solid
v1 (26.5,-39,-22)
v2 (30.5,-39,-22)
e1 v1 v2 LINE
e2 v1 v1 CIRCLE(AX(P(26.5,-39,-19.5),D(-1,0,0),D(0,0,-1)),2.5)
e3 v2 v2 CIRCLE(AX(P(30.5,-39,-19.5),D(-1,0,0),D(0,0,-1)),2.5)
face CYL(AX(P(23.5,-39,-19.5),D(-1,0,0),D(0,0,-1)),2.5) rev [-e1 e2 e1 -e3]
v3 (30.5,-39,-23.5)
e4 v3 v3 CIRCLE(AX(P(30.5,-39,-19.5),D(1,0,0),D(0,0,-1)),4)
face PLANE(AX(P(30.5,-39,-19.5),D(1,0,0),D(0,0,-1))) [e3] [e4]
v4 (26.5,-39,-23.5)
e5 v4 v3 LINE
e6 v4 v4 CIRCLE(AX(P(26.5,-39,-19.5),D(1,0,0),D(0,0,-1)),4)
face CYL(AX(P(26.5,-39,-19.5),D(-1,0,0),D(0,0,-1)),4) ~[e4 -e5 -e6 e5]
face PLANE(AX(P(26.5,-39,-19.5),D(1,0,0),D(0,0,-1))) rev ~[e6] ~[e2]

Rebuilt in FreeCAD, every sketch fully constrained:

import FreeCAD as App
import Part
import Sketcher
from FreeCAD import Vector
Q = App.Units.Quantity

doc = App.newDocument("Part")
body = doc.addObject("PartDesign::Body", "Body")

sketch1 = body.newObject("Sketcher::SketchObject", "Sketch")
sketch1.AttachmentSupport = (doc.getObject("YZ_Plane"), [""])
sketch1.MapMode = "FlatFace"
sketch1.AttachmentOffset = App.Placement(Vector(0, 0, 23.5), App.Rotation())
sketch1.addGeometry(Part.Circle(Vector(-39, -22, 0), Vector(0, 0, 1), 2.5), False)
sketch1.addConstraint([
    Sketcher.Constraint("Diameter", 0, Q("5 mm")),
    Sketcher.Constraint("DistanceX", 0, 3, -1, 1, Q("39 mm")),
    Sketcher.Constraint("DistanceY", 0, 3, -1, 1, Q("22 mm")),
])
pad1 = body.newObject("PartDesign::Pad", "Pad")
pad1.Profile = sketch1
pad1.Length = 10
body2 = doc.addObject("PartDesign::Body", "Body001")

sketch2 = body2.newObject("Sketcher::SketchObject", "Sketch001")
sketch2.AttachmentSupport = (doc.getObject("YZ_Plane001"), [""])
sketch2.MapMode = "FlatFace"
sketch2.AttachmentOffset = App.Placement(Vector(0, 0, 26.5), App.Rotation())
sketch2.addGeometry(Part.Circle(Vector(-39, -22, 0), Vector(0, 0, 1), 4), False)
sketch2.addConstraint([
    Sketcher.Constraint("Diameter", 0, Q("8 mm")),
    Sketcher.Constraint("DistanceX", 0, 3, -1, 1, Q("39 mm")),
    Sketcher.Constraint("DistanceY", 0, 3, -1, 1, Q("22 mm")),
])
pad2 = body2.newObject("PartDesign::Pad", "Pad001")
pad2.Profile = sketch2
pad2.Length = 4
doc.recompute()

boolean = body2.newObject("PartDesign::Boolean", "Boolean")
boolean.Type = "Cut"
boolean.addObjects([body])
body3 = doc.addObject("PartDesign::Body", "Body002")
doc.recompute()

body2.Placement = App.Placement(Vector(0, 0, 2.5), App.Rotation(Vector(0, 0, 1), 0))
boolean2 = body3.newObject("PartDesign::Boolean", "Boolean001")
boolean2.Type = "Fuse"
boolean2.addObjects([body2])

doc.recompute()
